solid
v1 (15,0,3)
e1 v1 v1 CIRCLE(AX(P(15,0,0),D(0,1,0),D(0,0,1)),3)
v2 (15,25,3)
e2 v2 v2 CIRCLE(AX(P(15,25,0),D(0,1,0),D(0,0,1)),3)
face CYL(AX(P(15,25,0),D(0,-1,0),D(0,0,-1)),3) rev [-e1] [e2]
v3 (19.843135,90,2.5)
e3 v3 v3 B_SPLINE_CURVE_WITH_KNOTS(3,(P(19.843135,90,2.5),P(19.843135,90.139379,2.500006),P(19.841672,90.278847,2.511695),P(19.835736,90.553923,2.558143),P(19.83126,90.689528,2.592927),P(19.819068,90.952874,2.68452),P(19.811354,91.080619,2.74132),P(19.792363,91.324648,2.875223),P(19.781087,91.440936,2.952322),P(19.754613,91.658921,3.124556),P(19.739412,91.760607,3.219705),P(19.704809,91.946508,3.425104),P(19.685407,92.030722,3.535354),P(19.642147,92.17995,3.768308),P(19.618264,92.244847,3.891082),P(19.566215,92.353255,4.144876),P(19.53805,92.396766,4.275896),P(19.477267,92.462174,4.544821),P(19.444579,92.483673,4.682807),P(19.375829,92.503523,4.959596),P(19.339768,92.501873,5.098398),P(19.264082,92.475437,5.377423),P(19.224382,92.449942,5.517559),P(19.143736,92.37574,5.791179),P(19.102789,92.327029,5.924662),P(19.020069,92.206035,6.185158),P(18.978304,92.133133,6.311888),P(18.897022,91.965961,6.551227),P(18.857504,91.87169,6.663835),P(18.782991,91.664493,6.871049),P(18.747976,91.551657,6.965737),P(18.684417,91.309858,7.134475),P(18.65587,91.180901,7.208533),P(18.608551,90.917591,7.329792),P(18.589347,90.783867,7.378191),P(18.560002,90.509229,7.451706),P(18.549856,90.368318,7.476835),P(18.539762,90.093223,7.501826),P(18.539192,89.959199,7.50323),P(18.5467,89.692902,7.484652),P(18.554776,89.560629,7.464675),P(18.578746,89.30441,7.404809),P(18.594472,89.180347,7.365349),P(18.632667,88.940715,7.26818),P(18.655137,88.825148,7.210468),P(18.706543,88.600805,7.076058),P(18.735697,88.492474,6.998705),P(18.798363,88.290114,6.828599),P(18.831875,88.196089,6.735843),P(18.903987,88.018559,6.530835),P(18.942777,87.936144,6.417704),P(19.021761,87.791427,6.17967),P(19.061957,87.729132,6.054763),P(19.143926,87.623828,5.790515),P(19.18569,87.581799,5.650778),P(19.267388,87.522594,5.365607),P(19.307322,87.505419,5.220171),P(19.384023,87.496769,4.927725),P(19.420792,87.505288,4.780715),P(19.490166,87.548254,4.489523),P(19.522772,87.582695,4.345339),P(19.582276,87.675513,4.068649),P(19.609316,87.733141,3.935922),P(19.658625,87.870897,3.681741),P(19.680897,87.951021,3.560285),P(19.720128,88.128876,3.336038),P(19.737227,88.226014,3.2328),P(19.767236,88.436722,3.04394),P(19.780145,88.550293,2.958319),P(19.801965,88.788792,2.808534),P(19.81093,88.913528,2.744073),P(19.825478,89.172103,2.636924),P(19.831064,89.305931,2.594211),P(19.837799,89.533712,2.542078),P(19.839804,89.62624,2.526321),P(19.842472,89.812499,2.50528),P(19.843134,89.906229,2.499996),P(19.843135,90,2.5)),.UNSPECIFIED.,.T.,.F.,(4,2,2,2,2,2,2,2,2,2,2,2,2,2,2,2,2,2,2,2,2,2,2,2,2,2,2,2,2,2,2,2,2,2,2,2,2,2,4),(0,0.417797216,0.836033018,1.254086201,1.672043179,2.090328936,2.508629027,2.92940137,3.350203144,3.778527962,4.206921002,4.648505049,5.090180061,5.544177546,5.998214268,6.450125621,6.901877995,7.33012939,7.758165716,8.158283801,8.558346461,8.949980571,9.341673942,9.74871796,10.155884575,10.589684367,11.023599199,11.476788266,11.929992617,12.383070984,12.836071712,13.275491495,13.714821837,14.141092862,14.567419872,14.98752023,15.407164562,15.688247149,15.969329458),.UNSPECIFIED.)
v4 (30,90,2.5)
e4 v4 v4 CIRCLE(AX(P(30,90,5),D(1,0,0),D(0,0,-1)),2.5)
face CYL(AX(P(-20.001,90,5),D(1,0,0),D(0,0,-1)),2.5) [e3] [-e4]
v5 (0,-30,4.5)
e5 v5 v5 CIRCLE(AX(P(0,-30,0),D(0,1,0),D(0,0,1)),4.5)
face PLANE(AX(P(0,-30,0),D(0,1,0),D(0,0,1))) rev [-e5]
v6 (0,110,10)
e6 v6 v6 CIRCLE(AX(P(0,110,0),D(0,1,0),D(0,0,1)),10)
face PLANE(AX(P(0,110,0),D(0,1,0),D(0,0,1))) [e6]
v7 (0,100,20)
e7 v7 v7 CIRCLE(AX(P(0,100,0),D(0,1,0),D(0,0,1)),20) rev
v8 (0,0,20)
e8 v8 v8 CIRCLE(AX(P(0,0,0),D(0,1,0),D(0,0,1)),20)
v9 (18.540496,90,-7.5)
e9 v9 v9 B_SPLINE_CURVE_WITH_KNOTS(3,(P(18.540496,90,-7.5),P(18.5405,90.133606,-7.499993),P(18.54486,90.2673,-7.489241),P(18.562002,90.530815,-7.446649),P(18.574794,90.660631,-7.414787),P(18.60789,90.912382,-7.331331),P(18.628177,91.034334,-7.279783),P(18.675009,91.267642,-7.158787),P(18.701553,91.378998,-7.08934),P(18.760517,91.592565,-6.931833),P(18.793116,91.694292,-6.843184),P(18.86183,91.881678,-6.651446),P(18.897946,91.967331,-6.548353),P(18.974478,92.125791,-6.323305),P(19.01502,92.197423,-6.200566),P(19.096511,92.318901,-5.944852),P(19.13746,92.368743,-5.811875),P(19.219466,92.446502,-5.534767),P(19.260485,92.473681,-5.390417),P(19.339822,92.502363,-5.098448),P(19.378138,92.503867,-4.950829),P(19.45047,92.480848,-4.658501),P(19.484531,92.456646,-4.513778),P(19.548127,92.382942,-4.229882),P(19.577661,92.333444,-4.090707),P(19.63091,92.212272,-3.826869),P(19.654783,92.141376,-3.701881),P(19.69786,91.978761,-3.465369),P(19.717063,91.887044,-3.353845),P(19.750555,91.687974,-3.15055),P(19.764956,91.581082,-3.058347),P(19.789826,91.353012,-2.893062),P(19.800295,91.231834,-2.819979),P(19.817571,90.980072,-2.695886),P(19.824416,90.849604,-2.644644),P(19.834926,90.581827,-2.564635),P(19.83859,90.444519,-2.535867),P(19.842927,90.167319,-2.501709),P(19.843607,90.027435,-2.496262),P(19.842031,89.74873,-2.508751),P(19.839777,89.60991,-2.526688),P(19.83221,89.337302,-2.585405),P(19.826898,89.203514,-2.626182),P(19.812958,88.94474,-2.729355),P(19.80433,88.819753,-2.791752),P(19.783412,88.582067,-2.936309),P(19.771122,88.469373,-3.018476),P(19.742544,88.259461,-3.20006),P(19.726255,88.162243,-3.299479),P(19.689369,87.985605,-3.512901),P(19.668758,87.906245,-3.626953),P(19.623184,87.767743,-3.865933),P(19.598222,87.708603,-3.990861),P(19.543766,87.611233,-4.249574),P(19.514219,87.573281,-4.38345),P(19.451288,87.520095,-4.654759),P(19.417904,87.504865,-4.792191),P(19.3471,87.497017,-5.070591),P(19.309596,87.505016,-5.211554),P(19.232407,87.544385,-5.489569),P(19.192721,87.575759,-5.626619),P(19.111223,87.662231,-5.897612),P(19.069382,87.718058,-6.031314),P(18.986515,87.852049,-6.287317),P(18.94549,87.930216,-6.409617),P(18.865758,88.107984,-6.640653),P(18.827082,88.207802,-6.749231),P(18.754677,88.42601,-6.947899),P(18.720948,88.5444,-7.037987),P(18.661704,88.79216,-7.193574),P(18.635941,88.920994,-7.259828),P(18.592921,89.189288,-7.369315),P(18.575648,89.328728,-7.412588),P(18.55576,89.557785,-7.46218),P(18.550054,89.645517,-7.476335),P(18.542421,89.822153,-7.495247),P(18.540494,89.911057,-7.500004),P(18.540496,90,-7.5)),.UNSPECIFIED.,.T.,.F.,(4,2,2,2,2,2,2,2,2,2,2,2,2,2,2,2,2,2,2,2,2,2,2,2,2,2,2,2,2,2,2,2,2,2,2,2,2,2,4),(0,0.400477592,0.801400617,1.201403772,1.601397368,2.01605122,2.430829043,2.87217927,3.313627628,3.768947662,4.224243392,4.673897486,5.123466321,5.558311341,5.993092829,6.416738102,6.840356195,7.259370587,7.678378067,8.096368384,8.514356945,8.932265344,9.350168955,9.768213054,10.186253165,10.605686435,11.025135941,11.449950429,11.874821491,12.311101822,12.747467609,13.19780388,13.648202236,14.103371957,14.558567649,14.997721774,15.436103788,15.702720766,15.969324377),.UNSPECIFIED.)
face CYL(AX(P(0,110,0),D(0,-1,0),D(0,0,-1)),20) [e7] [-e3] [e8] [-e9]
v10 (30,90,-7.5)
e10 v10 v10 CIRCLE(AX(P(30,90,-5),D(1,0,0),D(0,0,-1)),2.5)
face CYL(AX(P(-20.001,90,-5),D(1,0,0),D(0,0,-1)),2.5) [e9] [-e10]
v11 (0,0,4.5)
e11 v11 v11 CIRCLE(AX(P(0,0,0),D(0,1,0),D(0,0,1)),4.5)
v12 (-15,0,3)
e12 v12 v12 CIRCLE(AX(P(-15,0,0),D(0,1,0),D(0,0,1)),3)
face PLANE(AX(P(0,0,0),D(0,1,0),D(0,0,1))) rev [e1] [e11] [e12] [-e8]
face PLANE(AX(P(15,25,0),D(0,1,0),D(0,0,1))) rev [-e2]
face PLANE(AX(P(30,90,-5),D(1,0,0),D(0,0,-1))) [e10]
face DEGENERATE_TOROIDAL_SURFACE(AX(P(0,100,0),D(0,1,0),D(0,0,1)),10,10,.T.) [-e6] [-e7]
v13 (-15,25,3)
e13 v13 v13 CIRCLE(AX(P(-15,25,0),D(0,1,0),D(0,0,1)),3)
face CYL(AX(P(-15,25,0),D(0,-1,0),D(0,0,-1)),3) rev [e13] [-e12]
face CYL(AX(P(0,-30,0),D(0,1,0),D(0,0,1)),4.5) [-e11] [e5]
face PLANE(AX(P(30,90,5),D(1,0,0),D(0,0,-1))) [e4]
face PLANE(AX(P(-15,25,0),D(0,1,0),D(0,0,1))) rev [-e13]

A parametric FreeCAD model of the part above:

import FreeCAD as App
import Part
import Sketcher

V = App.Vector


def edges_at(feature, points):
    """Names of the edges that pass closest to the given points."""
    edges = feature.Shape.Edges
    near = lambda p: min(range(len(edges)), key=lambda i: edges[i].distToShape(Part.Vertex(*p))[0])
    return sorted({f"Edge{near(p) + 1}" for p in points})

doc = App.newDocument("Part")
params = doc.addObject("Spreadsheet::Sheet", "Params")
for row, (alias, value) in enumerate([
    ("sketch1_diameter", "40 mm"),
    ("pad1_length", "110 mm"),
    ("sketch2_diameter", "6 mm"),
    ("pocket1_length", "25 mm"),
    ("sketch3_diameter", "9 mm"),
    ("pad2_length", "30 mm"),
    ("fillet_radius", "10 mm"),
    ("sketch4_diameter", "5 mm"),
    ("sketch5_diameter", "5 mm"),
], start=1):
    params.set(f"A{row}", alias)
    params.set(f"B{row}", "=" + value)
    params.setAlias(f"B{row}", alias)

body = doc.addObject("PartDesign::Body", "Body")

# Sketch on XZ plane
sketch1 = body.newObject("Sketcher::SketchObject", "Sketch")
sketch1.AttachmentSupport = (doc.getObject("XZ_Plane"), [""])
sketch1.MapMode = "FlatFace"
sketch1.addGeometry(Part.Circle(V(0, 0, 0), V(0, 0, 1), 20), False)
sketch1.addConstraint([
    Sketcher.Constraint("Coincident", 0, 3, -1, 1),
    Sketcher.Constraint("Diameter", 0, 40.0),
])
sketch1.setExpression("Constraints[1]", "Params.sketch1_diameter")
pad1 = body.newObject("PartDesign::Pad", "Pad")
pad1.Profile = sketch1
pad1.setExpression("Length", "Params.pad1_length")
pad1.Reversed = True

# Sketch on XZ plane
sketch2 = body.newObject("Sketcher::SketchObject", "Sketch001")
sketch2.AttachmentSupport = (doc.getObject("XZ_Plane"), [""])
sketch2.MapMode = "FlatFace"
sketch2.addGeometry([
    Part.Circle(V(15, 0, 0), V(0, 0, 1), 3),
    Part.Circle(V(-15, 0, 0), V(0, 0, 1), 3),
], False)
sketch2.addConstraint([
    Sketcher.Constraint("Equal", 0, 1),
    Sketcher.Constraint("Symmetric", 0, 3, 1, 3, -1, 1),
    Sketcher.Constraint("PointOnObject", 0, 3, -1),
    Sketcher.Constraint("Diameter", 0, 6.0),
    Sketcher.Constraint("DistanceX", -1, 1, 0, 3, 15.0),
])
sketch2.setExpression("Constraints[3]", "Params.sketch2_diameter")
pocket1 = body.newObject("PartDesign::Pocket", "Pocket")
pocket1.Profile = sketch2
pocket1.setExpression("Length", "Params.pocket1_length")

# Sketch on XZ plane
sketch3 = body.newObject("Sketcher::SketchObject", "Sketch002")
sketch3.AttachmentSupport = (doc.getObject("XZ_Plane"), [""])
sketch3.MapMode = "FlatFace"
sketch3.addGeometry(Part.Circle(V(0, 0, 0), V(0, 0, 1), 4.5), False)
sketch3.addConstraint([
    Sketcher.Constraint("Coincident", 0, 3, -1, 1),
    Sketcher.Constraint("Diameter", 0, 9.0),
])
sketch3.setExpression("Constraints[1]", "Params.sketch3_diameter")
pad2 = body.newObject("PartDesign::Pad", "Pad001")
pad2.Profile = sketch3
pad2.setExpression("Length", "Params.pad2_length")
doc.recompute()

fillet = body.newObject("PartDesign::Fillet", "Fillet")
fillet.Base = (pad2, edges_at(pad2, [(-20, 110, 0)]))
fillet.setExpression("Radius", "Params.fillet_radius")

# Sketch on YZ plane
sketch4 = body.newObject("Sketcher::SketchObject", "Sketch003")
sketch4.AttachmentSupport = (doc.getObject("YZ_Plane"), [""])
sketch4.MapMode = "FlatFace"
sketch4.AttachmentOffset = App.Placement(V(0, 0, 30), App.Rotation())
sketch4.addGeometry(Part.Circle(V(90, -5, 0), V(0, 0, 1), 2.5), False)
sketch4.addConstraint([
    Sketcher.Constraint("Diameter", 0, 5.0),
    Sketcher.Constraint("DistanceX", -1, 1, 0, 3, 90.0),
    Sketcher.Constraint("DistanceY", 0, 3, -1, 1, 5.0),
])
sketch4.setExpression("Constraints[0]", "Params.sketch4_diameter")
pad3 = body.newObject("PartDesign::Pad", "Pad002")
pad3.Profile = sketch4
pad3.Type = "UpToFirst"
pad3.Reversed = True

# Sketch on YZ plane
sketch5 = body.newObject("Sketcher::SketchObject", "Sketch004")
sketch5.AttachmentSupport = (doc.getObject("YZ_Plane"), [""])
sketch5.MapMode = "FlatFace"
sketch5.AttachmentOffset = App.Placement(V(0, 0, 30), App.Rotation())
sketch5.addGeometry(Part.Circle(V(90, 5, 0), V(0, 0, 1), 2.5), False)
sketch5.addConstraint([
    Sketcher.Constraint("Diameter", 0, 5.0),
    Sketcher.Constraint("DistanceX", -1, 1, 0, 3, 90.0),
    Sketcher.Constraint("DistanceY", -1, 1, 0, 3, 5.0),
])
sketch5.setExpression("Constraints[0]", "Params.sketch5_diameter")
pad4 = body.newObject("PartDesign::Pad", "Pad003")
pad4.Profile = sketch5
pad4.Type = "UpToFirst"
pad4.Reversed = True

doc.recompute()
